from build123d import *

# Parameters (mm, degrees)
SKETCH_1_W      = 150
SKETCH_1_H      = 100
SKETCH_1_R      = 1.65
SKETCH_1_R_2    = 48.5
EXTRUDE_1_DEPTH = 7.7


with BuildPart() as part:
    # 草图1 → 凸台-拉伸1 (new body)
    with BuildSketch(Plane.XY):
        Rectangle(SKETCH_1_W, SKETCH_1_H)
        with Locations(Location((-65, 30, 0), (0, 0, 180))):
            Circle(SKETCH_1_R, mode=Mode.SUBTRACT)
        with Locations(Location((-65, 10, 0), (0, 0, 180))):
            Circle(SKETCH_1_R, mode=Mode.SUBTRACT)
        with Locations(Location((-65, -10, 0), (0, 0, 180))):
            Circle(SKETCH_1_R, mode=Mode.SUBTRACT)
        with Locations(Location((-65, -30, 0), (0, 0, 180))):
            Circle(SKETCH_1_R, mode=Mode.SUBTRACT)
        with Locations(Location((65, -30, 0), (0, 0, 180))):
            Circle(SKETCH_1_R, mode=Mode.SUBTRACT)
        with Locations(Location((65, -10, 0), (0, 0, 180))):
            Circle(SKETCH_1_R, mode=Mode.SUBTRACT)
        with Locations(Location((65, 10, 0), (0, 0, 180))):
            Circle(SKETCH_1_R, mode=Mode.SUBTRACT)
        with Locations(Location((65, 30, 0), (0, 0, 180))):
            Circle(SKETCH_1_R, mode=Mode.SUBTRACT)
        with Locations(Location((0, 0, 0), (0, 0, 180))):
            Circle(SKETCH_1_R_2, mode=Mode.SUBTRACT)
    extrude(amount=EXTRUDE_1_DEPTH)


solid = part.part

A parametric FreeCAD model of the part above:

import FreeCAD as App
import Part
import Sketcher

V = App.Vector
Q = App.Units.Quantity

doc = App.newDocument("Part")
body = doc.addObject("PartDesign::Body", "Body")

# Sketch on XY plane
sketch1 = body.newObject("Sketcher::SketchObject", "Sketch")
sketch1.AttachmentSupport = (doc.getObject("XY_Plane"), [""])
sketch1.MapMode = "FlatFace"
sketch1.addGeometry([
    Part.LineSegment(V(-75, 50, 0), V(-75, -50, 0)),  # 0
    Part.LineSegment(V(-75, -50, 0), V(75, -50, 0)),  # 1
    Part.LineSegment(V(75, -50, 0), V(75, 50, 0)),  # 2
    Part.LineSegment(V(75, 50, 0), V(-75, 50, 0)),  # 3
    Part.Circle(V(-65, -30, 0), V(0, 0, 1), 1.6),  # 4
    Part.Circle(V(-65, -10, 0), V(0, 0, 1), 1.6),  # 5
    Part.Circle(V(65, -30, 0), V(0, 0, 1), 1.6),  # 6
    Part.Circle(V(65, -10, 0), V(0, 0, 1), 1.6),  # 7
    Part.Circle(V(-65, 10, 0), V(0, 0, 1), 1.6),  # 8
    Part.Circle(V(-65, 30, 0), V(0, 0, 1), 1.6),  # 9
    Part.Circle(V(0, 0, 0), V(0, 0, 1), 48.5),  # 10
    Part.Circle(V(65, 10, 0), V(0, 0, 1), 1.6),  # 11
    Part.Circle(V(65, 30, 0), V(0, 0, 1), 1.6),  # 12
], False)
sketch1.addConstraint([
    Sketcher.Constraint("Coincident", 0, 2, 1, 1),
    Sketcher.Constraint("Coincident", 1, 2, 2, 1),
    Sketcher.Constraint("Coincident", 2, 2, 3, 1),
    Sketcher.Constraint("Coincident", 3, 2, 0, 1),
    Sketcher.Constraint("Vertical", 0),
    Sketcher.Constraint("Horizontal", 1),
    Sketcher.Constraint("Vertical", 2),
    Sketcher.Constraint("Horizontal", 3),
    Sketcher.Constraint("Coincident", 10, 3, -1, 1),
    Sketcher.Constraint("Equal", 4, 5),
    Sketcher.Constraint("Equal", 5, 6),
    Sketcher.Constraint("Equal", 6, 7),
    Sketcher.Constraint("Equal", 7, 8),
    Sketcher.Constraint("Equal", 8, 9),
    Sketcher.Constraint("Equal", 9, 11),
    Sketcher.Constraint("Equal", 11, 12),
    Sketcher.Constraint("Symmetric", 7, 3, 8, 3, -1, 1),
    Sketcher.Constraint("Symmetric", 6, 3, 9, 3, -1, 1),
    Sketcher.Constraint("Symmetric", 5, 3, 11, 3, -1, 1),
    Sketcher.Constraint("Symmetric", 4, 3, 12, 3, -1, 1),
    Sketcher.Constraint("Symmetric", 0, 2, 2, 2, -1, 1),
    Sketcher.Constraint("Symmetric", 4, 3, 6, 3, -2),
    Sketcher.Constraint("Symmetric", 5, 3, 7, 3, -2),
    Sketcher.Constraint("Vertical", 4, 3, 5, 3),
    Sketcher.Constraint("Diameter", 10, Q("97 mm")),
    Sketcher.Constraint("Diameter", 4, Q("3.3 mm")),
    Sketcher.Constraint("DistanceX", 1, 1, 1, 2, Q("150 mm")),
    Sketcher.Constraint("DistanceY", 0, 2, 0, 1, Q("100 mm")),
    Sketcher.Constraint("DistanceX", 4, 3, -1, 1, Q("65 mm")),
    Sketcher.Constraint("DistanceY", 4, 3, -1, 1, Q("30 mm")),
    Sketcher.Constraint("DistanceY", 5, 3, -1, 1, Q("10 mm")),
])
pad1 = body.newObject("PartDesign::Pad", "Pad")
pad1.Profile = sketch1
pad1.Length = 7.7

doc.recompute()
